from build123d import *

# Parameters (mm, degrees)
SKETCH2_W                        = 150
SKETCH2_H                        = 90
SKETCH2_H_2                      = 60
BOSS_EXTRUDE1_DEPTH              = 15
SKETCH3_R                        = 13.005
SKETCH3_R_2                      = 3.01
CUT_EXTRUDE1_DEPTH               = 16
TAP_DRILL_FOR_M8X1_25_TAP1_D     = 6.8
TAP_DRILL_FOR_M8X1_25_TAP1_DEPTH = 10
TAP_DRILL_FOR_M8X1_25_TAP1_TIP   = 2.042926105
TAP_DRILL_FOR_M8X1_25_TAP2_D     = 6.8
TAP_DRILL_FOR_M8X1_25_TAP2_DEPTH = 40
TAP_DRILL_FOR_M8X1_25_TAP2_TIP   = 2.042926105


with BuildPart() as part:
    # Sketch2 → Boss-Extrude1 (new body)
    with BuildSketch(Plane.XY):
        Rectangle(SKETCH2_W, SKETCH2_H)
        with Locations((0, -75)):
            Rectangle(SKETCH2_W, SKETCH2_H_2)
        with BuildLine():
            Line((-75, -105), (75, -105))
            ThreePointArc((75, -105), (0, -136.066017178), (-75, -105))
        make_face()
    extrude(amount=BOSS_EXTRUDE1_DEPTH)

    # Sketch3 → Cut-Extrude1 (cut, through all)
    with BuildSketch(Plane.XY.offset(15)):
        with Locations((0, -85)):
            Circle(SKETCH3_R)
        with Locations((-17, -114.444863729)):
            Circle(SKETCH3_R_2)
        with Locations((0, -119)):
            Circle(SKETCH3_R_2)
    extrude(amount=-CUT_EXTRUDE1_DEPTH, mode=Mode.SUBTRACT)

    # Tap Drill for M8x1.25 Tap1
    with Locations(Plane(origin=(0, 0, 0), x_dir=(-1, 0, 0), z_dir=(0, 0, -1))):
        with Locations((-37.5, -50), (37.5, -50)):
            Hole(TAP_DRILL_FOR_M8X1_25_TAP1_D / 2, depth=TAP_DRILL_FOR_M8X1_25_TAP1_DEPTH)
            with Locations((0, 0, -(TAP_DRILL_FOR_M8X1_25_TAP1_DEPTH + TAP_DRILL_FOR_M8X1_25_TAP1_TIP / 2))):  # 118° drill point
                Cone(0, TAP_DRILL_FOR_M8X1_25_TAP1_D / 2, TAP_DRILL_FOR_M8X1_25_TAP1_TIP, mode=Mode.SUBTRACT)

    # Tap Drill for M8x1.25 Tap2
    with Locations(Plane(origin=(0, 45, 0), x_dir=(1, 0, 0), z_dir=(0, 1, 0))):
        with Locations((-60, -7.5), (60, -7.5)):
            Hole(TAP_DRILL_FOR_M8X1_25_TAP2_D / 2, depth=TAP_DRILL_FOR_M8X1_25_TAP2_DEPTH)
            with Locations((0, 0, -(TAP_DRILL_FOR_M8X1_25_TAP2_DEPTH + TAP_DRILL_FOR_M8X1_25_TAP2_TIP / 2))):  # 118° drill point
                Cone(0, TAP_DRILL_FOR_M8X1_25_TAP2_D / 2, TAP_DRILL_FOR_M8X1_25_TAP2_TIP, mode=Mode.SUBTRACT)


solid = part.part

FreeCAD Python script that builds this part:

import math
import FreeCAD as App
import Part
import Sketcher

doc = App.newDocument("Part")
body = doc.addObject("PartDesign::Body", "Body")

sketch1 = body.newObject("Sketcher::SketchObject", "Sketch")
sketch1.AttachmentSupport = (doc.getObject("XY_Plane"), [""])
sketch1.MapMode = "FlatFace"
sketch1.addGeometry(Part.LineSegment(App.Vector(-75, 45, 0), App.Vector(-75, -105, 0)), False)
sketch1.addGeometry(Part.ArcOfCircle(Part.Circle(App.Vector(0, -30, 0), App.Vector(0, 0, 1), 106), math.radians(-135), math.radians(-45)), False)
sketch1.addGeometry(Part.LineSegment(App.Vector(75, -105, 0), App.Vector(75, 45, 0)), False)
sketch1.addGeometry(Part.LineSegment(App.Vector(75, 45, 0), App.Vector(-75, 45, 0)), False)
sketch1.addConstraint(Sketcher.Constraint("Coincident", 0, 2, 1, 1))
sketch1.addConstraint(Sketcher.Constraint("Coincident", 1, 2, 2, 1))
sketch1.addConstraint(Sketcher.Constraint("Coincident", 2, 2, 3, 1))
sketch1.addConstraint(Sketcher.Constraint("Coincident", 3, 2, 0, 1))
sketch1.addConstraint(Sketcher.Constraint("Vertical", 0))
sketch1.addConstraint(Sketcher.Constraint("Vertical", 2))
sketch1.addConstraint(Sketcher.Constraint("Horizontal", 3))
sketch1.addConstraint(Sketcher.Constraint("Symmetric", 0, 2, 1, 2, -2))
sketch1.addConstraint(Sketcher.Constraint("Equal", 3, 0))
sketch1.addConstraint(Sketcher.Constraint("DistanceX", 3, 2, 3, 1, 150.0))
sketch1.addConstraint(Sketcher.Constraint("DistanceY", 1, 3, -1, 1, 30.0))
sketch1.addConstraint(Sketcher.Constraint("DistanceY", 0, 2, -1, 1, 105.0))
pad1 = body.newObject("PartDesign::Pad", "Pad")
pad1.Profile = sketch1
pad1.Length = 15

sketch2 = body.newObject("Sketcher::SketchObject", "Sketch001")
sketch2.AttachmentSupport = (doc.getObject("XY_Plane"), [""])
sketch2.MapMode = "FlatFace"
sketch2.AttachmentOffset = App.Placement(App.Vector(0, 0, 15), App.Rotation())
sketch2.addGeometry(Part.Circle(App.Vector(0, -85, 0), App.Vector(0, 0, 1), 13), False)
sketch2.addGeometry(Part.Circle(App.Vector(-17, -114.4, 0), App.Vector(0, 0, 1), 3), False)
sketch2.addGeometry(Part.Circle(App.Vector(0, -119, 0), App.Vector(0, 0, 1), 3), False)
sketch2.addConstraint(Sketcher.Constraint("Equal", 1, 2))
sketch2.addConstraint(Sketcher.Constraint("PointOnObject", 0, 3, -2))
sketch2.addConstraint(Sketcher.Constraint("PointOnObject", 2, 3, -2))
sketch2.addConstraint(Sketcher.Constraint("Diameter", 0, 26.01))
sketch2.addConstraint(Sketcher.Constraint("Diameter", 1, 6.02))
sketch2.addConstraint(Sketcher.Constraint("DistanceY", 0, 3, -1, 1, 85.0))
sketch2.addConstraint(Sketcher.Constraint("DistanceX", 1, 3, -1, 1, 17.0))
sketch2.addConstraint(Sketcher.Constraint("DistanceY", 2, 3, -1, 1, 119.0))
sketch2.addConstraint(Sketcher.Constraint("DistanceY", 1, 3, -1, 1, 114.444864))
pocket1 = body.newObject("PartDesign::Pocket", "Pocket")
pocket1.Profile = sketch2
pocket1.Type = "ThroughAll"

sketch3 = body.newObject("Sketcher::SketchObject", "Sketch002")
sketch3.AttachmentSupport = (doc.getObject("XY_Plane"), [""])
sketch3.MapMode = "FlatFace"
sketch3.addGeometry(Part.Circle(App.Vector(37.5, -50, 0), App.Vector(0, 0, 1), 3.4), False)
sketch3.addGeometry(Part.Circle(App.Vector(-37.5, -50, 0), App.Vector(0, 0, 1), 3.4), False)
sketch3.addConstraint(Sketcher.Constraint("Equal", 0, 1))
sketch3.addConstraint(Sketcher.Constraint("Symmetric", 0, 3, 1, 3, -2))
sketch3.addConstraint(Sketcher.Constraint("Diameter", 0, 6.8))
sketch3.addConstraint(Sketcher.Constraint("DistanceY", 0, 3, -1, 1, 50.0))
sketch3.addConstraint(Sketcher.Constraint("DistanceX", 1, 3, 0, 3, 75.0))
doc.recompute()
hole = body.newObject("PartDesign::Hole", "Hole")
hole.Profile = sketch3
hole.ThreadType = "None"
hole.Diameter = 6.8
hole.DepthType = "Dimension"
hole.Depth = 10
hole.DrillPoint = "Angled"
hole.DrillPointAngle = 118
hole.Reversed = True

sketch4 = body.newObject("Sketcher::SketchObject", "Sketch003")
sketch4.AttachmentSupport = (doc.getObject("XZ_Plane"), [""])
sketch4.MapMode = "FlatFace"
sketch4.AttachmentOffset = App.Placement(App.Vector(0, 0, -45), App.Rotation())
sketch4.addGeometry(Part.Circle(App.Vector(-60, 7.5, 0), App.Vector(0, 0, 1), 3.4), False)
sketch4.addGeometry(Part.Circle(App.Vector(60, 7.5, 0), App.Vector(0, 0, 1), 3.4), False)
sketch4.addConstraint(Sketcher.Constraint("Equal", 0, 1))
sketch4.addConstraint(Sketcher.Constraint("Symmetric", 0, 3, 1, 3, -2))
sketch4.addConstraint(Sketcher.Constraint("Diameter", 0, 6.8))
sketch4.addConstraint(Sketcher.Constraint("DistanceX", 0, 3, -1, 1, 60.0))
sketch4.addConstraint(Sketcher.Constraint("DistanceY", -1, 1, 0, 3, 7.5))
doc.recompute()
hole2 = body.newObject("PartDesign::Hole", "Hole001")
hole2.Profile = sketch4
hole2.ThreadType = "None"
hole2.Diameter = 6.8
hole2.DepthType = "Dimension"
hole2.Depth = 40
hole2.DrillPoint = "Angled"
hole2.DrillPointAngle = 118
hole2.Reversed = True

doc.recompute()
